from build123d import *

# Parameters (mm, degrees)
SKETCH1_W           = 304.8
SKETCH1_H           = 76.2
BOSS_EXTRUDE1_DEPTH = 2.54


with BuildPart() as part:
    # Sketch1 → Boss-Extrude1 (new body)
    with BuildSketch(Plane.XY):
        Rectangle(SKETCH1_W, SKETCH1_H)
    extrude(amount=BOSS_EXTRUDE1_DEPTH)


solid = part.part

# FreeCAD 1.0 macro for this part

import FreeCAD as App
import Part
import Sketcher
from FreeCAD import Vector
Q = App.Units.Quantity

doc = App.newDocument("Part")
params = doc.addObject("Spreadsheet::Sheet", "Params")
for row, (alias, value) in enumerate([
    ("sketch1_width", "12 in"),
    ("sketch1_height", "3 in"),
    ("pad1_length", "0.1 in"),
], start=1):
    params.set(f"A{row}", alias)
    params.set(f"B{row}", "=" + value)
    params.setAlias(f"B{row}", alias)

body = doc.addObject("PartDesign::Body", "Body")

# Sketch on XY plane
sketch1 = body.newObject("Sketcher::SketchObject", "Sketch")
sketch1.AttachmentSupport = (doc.getObject("XY_Plane"), [""])
sketch1.MapMode = "FlatFace"
sketch1.addGeometry([
    Part.LineSegment(Vector(-152, 38, 0), Vector(-152, -38, 0)),
    Part.LineSegment(Vector(-152, -38, 0), Vector(152, -38, 0)),
    Part.LineSegment(Vector(152, -38, 0), Vector(152, 38, 0)),
    Part.LineSegment(Vector(152, 38, 0), Vector(-152, 38, 0)),
], False)
sketch1.addConstraint([
    Sketcher.Constraint("Coincident", 0, 2, 1, 1),
    Sketcher.Constraint("Coincident", 1, 2, 2, 1),
    Sketcher.Constraint("Coincident", 2, 2, 3, 1),
    Sketcher.Constraint("Coincident", 3, 2, 0, 1),
    Sketcher.Constraint("Vertical", 0),
    Sketcher.Constraint("Horizontal", 1),
    Sketcher.Constraint("Vertical", 2),
    Sketcher.Constraint("Horizontal", 3),
    Sketcher.Constraint("Symmetric", 0, 2, 2, 2, -1, 1),
    Sketcher.Constraint("DistanceX", 1, 1, 1, 2, Q("12 in")),
    Sketcher.Constraint("DistanceY", 0, 2, 0, 1, Q("3 in")),
])
sketch1.setExpression("Constraints[9]", "Params.sketch1_width")
sketch1.setExpression("Constraints[10]", "Params.sketch1_height")
pad1 = body.newObject("PartDesign::Pad", "Pad")
pad1.Profile = sketch1
pad1.setExpression("Length", "Params.pad1_length")

doc.recompute()
